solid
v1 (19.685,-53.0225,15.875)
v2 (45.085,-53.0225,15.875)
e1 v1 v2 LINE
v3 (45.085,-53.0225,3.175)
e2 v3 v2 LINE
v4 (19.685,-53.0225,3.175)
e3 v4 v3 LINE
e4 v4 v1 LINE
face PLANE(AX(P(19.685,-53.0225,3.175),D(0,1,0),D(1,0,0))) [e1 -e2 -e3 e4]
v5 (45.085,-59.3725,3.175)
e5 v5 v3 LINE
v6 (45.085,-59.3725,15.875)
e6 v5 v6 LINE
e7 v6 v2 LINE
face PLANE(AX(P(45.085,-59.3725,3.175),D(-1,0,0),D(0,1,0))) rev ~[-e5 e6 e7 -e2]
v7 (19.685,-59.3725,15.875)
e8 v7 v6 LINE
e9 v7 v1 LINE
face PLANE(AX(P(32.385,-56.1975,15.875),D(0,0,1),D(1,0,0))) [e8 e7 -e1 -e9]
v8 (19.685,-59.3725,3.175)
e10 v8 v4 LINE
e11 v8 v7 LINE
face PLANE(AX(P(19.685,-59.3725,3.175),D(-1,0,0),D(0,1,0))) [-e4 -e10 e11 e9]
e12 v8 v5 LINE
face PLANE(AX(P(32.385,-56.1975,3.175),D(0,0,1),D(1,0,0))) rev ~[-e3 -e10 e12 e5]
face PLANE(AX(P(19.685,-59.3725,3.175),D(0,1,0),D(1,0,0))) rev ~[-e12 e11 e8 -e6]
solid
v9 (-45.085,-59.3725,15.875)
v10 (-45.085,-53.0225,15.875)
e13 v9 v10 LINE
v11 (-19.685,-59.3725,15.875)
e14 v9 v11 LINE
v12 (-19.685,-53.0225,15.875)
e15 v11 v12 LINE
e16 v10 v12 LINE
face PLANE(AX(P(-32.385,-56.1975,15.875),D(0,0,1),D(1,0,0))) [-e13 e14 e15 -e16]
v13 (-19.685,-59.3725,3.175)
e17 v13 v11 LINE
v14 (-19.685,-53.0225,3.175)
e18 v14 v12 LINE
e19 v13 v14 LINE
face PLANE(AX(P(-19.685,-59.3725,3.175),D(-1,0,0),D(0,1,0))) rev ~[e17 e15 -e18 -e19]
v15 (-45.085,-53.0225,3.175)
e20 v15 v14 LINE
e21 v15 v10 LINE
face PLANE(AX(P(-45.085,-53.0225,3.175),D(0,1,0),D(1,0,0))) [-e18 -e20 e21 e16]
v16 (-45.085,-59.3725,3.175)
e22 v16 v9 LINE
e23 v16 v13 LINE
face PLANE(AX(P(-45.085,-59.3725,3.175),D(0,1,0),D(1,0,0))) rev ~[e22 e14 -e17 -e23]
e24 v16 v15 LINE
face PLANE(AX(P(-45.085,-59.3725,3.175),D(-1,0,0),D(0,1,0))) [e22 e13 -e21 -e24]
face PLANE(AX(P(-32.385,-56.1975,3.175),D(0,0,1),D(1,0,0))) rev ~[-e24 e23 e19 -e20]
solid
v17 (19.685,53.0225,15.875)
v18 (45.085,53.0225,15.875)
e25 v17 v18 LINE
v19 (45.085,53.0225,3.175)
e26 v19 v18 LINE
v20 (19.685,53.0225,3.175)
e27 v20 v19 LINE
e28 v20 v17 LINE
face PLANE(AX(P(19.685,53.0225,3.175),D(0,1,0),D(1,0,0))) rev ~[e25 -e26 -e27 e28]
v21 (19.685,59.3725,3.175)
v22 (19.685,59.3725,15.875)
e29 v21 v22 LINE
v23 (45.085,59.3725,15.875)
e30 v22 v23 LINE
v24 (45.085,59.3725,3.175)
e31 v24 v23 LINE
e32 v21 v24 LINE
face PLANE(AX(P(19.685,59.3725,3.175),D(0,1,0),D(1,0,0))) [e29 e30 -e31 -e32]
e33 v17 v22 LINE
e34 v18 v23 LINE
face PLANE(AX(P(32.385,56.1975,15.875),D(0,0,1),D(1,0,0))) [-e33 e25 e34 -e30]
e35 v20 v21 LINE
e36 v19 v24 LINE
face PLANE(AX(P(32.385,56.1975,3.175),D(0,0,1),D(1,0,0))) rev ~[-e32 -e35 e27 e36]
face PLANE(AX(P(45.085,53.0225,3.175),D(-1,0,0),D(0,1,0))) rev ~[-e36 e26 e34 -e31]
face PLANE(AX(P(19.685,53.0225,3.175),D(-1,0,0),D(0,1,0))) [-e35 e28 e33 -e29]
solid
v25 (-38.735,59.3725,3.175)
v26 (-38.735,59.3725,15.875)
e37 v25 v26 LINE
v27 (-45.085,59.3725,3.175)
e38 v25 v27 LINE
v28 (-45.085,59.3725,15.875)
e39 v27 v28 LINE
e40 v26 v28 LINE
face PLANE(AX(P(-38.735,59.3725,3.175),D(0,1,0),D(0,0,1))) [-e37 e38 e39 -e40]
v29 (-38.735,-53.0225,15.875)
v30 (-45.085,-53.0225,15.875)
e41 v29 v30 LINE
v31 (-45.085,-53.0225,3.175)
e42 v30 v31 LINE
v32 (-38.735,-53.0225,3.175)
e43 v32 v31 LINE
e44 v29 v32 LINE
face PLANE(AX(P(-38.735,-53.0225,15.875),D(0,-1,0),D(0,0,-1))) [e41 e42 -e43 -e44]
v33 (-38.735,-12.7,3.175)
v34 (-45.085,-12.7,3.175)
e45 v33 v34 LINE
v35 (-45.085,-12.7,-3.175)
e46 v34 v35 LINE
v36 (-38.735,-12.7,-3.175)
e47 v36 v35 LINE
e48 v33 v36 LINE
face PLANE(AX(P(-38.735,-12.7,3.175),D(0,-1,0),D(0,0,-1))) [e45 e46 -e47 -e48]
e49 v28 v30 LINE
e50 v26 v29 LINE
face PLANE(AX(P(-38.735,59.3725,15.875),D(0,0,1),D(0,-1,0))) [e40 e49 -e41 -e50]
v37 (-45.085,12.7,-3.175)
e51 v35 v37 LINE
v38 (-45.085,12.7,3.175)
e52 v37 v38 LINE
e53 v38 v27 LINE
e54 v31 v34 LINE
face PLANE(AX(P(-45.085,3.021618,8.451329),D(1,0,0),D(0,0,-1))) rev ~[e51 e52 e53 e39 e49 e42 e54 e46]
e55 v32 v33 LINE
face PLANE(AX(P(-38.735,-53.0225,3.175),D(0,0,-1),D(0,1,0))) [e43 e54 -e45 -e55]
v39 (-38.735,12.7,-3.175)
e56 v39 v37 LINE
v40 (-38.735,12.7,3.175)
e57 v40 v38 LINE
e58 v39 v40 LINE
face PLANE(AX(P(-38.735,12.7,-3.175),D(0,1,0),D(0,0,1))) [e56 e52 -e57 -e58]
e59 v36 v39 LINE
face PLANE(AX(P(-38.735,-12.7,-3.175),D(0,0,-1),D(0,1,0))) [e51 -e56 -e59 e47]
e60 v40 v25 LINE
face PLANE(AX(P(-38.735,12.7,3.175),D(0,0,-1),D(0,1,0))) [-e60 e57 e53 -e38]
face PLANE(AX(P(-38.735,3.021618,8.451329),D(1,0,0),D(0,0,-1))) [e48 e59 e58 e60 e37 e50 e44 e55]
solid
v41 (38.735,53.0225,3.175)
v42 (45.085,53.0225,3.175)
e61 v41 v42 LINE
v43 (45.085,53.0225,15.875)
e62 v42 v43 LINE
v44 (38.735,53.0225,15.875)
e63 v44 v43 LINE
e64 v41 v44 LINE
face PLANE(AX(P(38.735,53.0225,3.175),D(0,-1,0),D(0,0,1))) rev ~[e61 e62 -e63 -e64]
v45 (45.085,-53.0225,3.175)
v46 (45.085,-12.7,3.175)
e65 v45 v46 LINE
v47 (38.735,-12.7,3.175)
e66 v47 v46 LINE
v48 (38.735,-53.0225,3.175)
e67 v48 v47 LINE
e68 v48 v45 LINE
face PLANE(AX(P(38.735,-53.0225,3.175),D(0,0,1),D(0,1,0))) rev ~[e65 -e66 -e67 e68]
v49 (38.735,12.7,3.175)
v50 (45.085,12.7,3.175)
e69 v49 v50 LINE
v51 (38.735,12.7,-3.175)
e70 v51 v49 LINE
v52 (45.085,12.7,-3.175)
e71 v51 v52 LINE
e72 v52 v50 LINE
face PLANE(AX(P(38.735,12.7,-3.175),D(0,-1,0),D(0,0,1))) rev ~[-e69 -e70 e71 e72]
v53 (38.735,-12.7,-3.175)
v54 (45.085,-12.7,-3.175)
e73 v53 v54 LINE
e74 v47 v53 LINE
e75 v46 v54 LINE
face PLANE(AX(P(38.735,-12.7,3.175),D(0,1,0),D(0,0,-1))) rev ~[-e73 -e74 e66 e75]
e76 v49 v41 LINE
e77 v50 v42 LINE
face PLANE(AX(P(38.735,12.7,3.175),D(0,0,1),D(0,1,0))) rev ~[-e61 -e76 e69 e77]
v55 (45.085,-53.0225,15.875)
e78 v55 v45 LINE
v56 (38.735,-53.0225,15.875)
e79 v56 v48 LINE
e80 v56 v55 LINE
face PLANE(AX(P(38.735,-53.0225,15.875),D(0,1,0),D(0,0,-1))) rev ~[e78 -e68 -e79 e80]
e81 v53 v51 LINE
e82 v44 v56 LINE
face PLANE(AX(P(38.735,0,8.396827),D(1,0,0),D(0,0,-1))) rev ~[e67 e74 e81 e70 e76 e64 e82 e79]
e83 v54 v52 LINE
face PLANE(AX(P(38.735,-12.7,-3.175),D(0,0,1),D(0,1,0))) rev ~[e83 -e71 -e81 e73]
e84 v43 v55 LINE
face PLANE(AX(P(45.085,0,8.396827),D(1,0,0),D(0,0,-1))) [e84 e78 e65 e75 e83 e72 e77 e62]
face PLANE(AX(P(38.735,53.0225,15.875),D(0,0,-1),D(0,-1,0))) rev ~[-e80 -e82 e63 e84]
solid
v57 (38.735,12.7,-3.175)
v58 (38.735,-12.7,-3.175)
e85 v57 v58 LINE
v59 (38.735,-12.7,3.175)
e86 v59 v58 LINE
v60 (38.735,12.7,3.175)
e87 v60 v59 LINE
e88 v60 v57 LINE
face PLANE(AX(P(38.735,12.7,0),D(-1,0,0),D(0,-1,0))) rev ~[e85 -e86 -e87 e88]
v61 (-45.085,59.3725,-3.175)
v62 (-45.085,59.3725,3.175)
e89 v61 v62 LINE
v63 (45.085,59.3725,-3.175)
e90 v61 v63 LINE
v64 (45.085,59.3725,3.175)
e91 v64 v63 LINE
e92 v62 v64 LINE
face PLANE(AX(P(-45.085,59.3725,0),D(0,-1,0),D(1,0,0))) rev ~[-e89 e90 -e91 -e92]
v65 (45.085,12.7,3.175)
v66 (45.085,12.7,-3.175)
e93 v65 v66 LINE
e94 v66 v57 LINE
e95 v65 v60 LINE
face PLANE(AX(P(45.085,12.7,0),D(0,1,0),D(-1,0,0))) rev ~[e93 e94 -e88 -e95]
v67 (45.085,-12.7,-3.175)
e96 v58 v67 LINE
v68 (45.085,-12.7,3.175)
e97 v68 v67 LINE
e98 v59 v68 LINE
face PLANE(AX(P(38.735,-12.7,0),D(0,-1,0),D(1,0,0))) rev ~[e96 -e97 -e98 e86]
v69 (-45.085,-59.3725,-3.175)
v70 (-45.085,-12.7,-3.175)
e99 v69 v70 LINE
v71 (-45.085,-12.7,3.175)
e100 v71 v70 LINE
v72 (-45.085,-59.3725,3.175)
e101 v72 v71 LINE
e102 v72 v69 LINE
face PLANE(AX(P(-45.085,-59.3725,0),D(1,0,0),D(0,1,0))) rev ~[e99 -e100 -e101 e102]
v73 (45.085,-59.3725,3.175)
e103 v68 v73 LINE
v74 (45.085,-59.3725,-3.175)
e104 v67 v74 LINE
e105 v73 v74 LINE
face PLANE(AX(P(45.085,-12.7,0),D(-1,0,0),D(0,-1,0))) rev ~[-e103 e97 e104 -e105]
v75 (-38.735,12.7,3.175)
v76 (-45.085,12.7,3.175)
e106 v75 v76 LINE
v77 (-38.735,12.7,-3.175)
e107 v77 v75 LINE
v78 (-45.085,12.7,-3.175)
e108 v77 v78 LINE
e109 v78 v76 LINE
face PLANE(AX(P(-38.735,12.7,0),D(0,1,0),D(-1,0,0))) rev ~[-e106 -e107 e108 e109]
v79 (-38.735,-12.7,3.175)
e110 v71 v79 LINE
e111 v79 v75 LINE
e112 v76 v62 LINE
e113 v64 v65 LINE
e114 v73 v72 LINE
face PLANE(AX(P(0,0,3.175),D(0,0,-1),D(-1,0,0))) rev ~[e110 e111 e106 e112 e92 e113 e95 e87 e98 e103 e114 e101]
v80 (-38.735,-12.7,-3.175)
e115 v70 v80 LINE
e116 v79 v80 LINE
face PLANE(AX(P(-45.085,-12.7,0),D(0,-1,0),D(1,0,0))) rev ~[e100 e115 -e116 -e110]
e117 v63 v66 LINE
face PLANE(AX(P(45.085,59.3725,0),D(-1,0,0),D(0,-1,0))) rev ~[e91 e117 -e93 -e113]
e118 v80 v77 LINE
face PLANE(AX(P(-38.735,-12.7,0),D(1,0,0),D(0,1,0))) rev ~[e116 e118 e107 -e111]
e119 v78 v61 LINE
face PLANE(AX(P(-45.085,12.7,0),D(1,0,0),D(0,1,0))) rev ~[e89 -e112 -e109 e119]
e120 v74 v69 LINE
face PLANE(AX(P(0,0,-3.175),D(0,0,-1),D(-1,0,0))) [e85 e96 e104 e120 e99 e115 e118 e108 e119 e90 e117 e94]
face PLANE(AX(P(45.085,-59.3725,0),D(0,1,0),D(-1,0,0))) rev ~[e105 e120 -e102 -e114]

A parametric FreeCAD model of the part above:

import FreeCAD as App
import Part
import Sketcher
from FreeCAD import Vector
Q = App.Units.Quantity

doc = App.newDocument("Part")
body = doc.addObject("PartDesign::Body", "Body")

# Sketch on XY plane
sketch1 = body.newObject("Sketcher::SketchObject", "Sketch")
sketch1.AttachmentSupport = (doc.getObject("XY_Plane"), [""])
sketch1.MapMode = "FlatFace"
sketch1.addGeometry(Part.LineSegment(Vector(45.085, 59.3725, 0), Vector(-45.085, 59.3725, 0)), False)
sketch1.addGeometry(Part.LineSegment(Vector(-45.085, 59.3725, 0), Vector(-45.085, 12.7, 0)), False)
sketch1.addGeometry(Part.LineSegment(Vector(-45.085, 12.7, 0), Vector(-38.735, 12.7, 0)), False)
sketch1.addGeometry(Part.LineSegment(Vector(-38.735, 12.7, 0), Vector(-38.735, -12.7, 0)), False)
sketch1.addGeometry(Part.LineSegment(Vector(-38.735, -12.7, 0), Vector(-45.085, -12.7, 0)), False)
sketch1.addGeometry(Part.LineSegment(Vector(-45.085, -12.7, 0), Vector(-45.085, -59.3725, 0)), False)
sketch1.addGeometry(Part.LineSegment(Vector(-45.085, -59.3725, 0), Vector(45.085, -59.3725, 0)), False)
sketch1.addGeometry(Part.LineSegment(Vector(45.085, -59.3725, 0), Vector(45.085, -12.7, 0)), False)
sketch1.addGeometry(Part.LineSegment(Vector(45.085, -12.7, 0), Vector(38.735, -12.7, 0)), False)
sketch1.addGeometry(Part.LineSegment(Vector(38.735, -12.7, 0), Vector(38.735, 12.7, 0)), False)
sketch1.addGeometry(Part.LineSegment(Vector(38.735, 12.7, 0), Vector(45.085, 12.7, 0)), False)
sketch1.addGeometry(Part.LineSegment(Vector(45.085, 12.7, 0), Vector(45.085, 59.3725, 0)), False)
sketch1.addConstraint(Sketcher.Constraint("Coincident", 0, 2, 1, 1))
sketch1.addConstraint(Sketcher.Constraint("Coincident", 1, 2, 2, 1))
sketch1.addConstraint(Sketcher.Constraint("Coincident", 2, 2, 3, 1))
sketch1.addConstraint(Sketcher.Constraint("Coincident", 3, 2, 4, 1))
sketch1.addConstraint(Sketcher.Constraint("Coincident", 4, 2, 5, 1))
sketch1.addConstraint(Sketcher.Constraint("Coincident", 5, 2, 6, 1))
sketch1.addConstraint(Sketcher.Constraint("Coincident", 6, 2, 7, 1))
sketch1.addConstraint(Sketcher.Constraint("Coincident", 7, 2, 8, 1))
sketch1.addConstraint(Sketcher.Constraint("Coincident", 8, 2, 9, 1))
sketch1.addConstraint(Sketcher.Constraint("Coincident", 9, 2, 10, 1))
sketch1.addConstraint(Sketcher.Constraint("Coincident", 10, 2, 11, 1))
sketch1.addConstraint(Sketcher.Constraint("Coincident", 11, 2, 0, 1))
sketch1.addConstraint(Sketcher.Constraint("Horizontal", 0))
sketch1.addConstraint(Sketcher.Constraint("Vertical", 1))
sketch1.addConstraint(Sketcher.Constraint("Horizontal", 2))
sketch1.addConstraint(Sketcher.Constraint("Vertical", 3))
sketch1.addConstraint(Sketcher.Constraint("Horizontal", 4))
sketch1.addConstraint(Sketcher.Constraint("Vertical", 5))
sketch1.addConstraint(Sketcher.Constraint("Horizontal", 6))
sketch1.addConstraint(Sketcher.Constraint("Vertical", 7))
sketch1.addConstraint(Sketcher.Constraint("Horizontal", 8))
sketch1.addConstraint(Sketcher.Constraint("Vertical", 9))
sketch1.addConstraint(Sketcher.Constraint("Horizontal", 10))
sketch1.addConstraint(Sketcher.Constraint("Vertical", 11))
sketch1.addConstraint(Sketcher.Constraint("Symmetric", 0, 2, 6, 2, -1, 1))
sketch1.addConstraint(Sketcher.Constraint("Symmetric", 2, 2, 8, 2, -1, 1))
sketch1.addConstraint(Sketcher.Constraint("Symmetric", 4, 2, 10, 2, -1, 1))
sketch1.addConstraint(Sketcher.Constraint("Symmetric", 4, 2, 7, 2, -2))
sketch1.addConstraint(Sketcher.Constraint("DistanceY", 3, 2, 3, 1, Q("1 in")))
sketch1.addConstraint(Sketcher.Constraint("DistanceX", 0, 2, 0, 1, Q("3.55 in")))
sketch1.addConstraint(Sketcher.Constraint("DistanceX", 2, 1, 2, 2, Q("0.25 in")))
sketch1.addConstraint(Sketcher.Constraint("DistanceY", 1, 2, 1, 1, Q("1.8375 in")))
pad1 = body.newObject("PartDesign::Pad", "Pad")
pad1.Profile = sketch1
pad1.Length = Q("0.25 in")
pad1.Midplane = True
body2 = doc.addObject("PartDesign::Body", "Body001")

# Sketch on XY plane
sketch2 = body2.newObject("Sketcher::SketchObject", "Sketch001")
sketch2.AttachmentSupport = (doc.getObject("XY_Plane001"), [""])
sketch2.MapMode = "FlatFace"
sketch2.AttachmentOffset = App.Placement(Vector(0, 0, 0.125 * 25.4), App.Rotation())
sketch2.addGeometry(Part.LineSegment(Vector(19.685, 59.3725, 0), Vector(19.685, 53.0225, 0)), False)
sketch2.addGeometry(Part.LineSegment(Vector(19.685, 53.0225, 0), Vector(45.085, 53.0225, 0)), False)
sketch2.addGeometry(Part.LineSegment(Vector(45.085, 53.0225, 0), Vector(45.085, 59.3725, 0)), False)
sketch2.addGeometry(Part.LineSegment(Vector(45.085, 59.3725, 0), Vector(19.685, 59.3725, 0)), False)
sketch2.addConstraint(Sketcher.Constraint("Coincident", 0, 2, 1, 1))
sketch2.addConstraint(Sketcher.Constraint("Coincident", 1, 2, 2, 1))
sketch2.addConstraint(Sketcher.Constraint("Coincident", 2, 2, 3, 1))
sketch2.addConstraint(Sketcher.Constraint("Coincident", 3, 2, 0, 1))
sketch2.addConstraint(Sketcher.Constraint("Vertical", 0))
sketch2.addConstraint(Sketcher.Constraint("Horizontal", 1))
sketch2.addConstraint(Sketcher.Constraint("Vertical", 2))
sketch2.addConstraint(Sketcher.Constraint("Horizontal", 3))
sketch2.addConstraint(Sketcher.Constraint("DistanceX", 1, 1, 1, 2, Q("1 in")))
sketch2.addConstraint(Sketcher.Constraint("DistanceY", 0, 2, 0, 1, Q("0.25 in")))
sketch2.addConstraint(Sketcher.Constraint("DistanceX", -1, 1, 0, 2, Q("0.775 in")))
sketch2.addConstraint(Sketcher.Constraint("DistanceY", -1, 1, 0, 2, Q("2.0875 in")))
pad2 = body2.newObject("PartDesign::Pad", "Pad001")
pad2.Profile = sketch2
pad2.Length = Q("0.5 in")
body3 = doc.addObject("PartDesign::Body", "Body002")

# Sketch on XY plane
sketch3 = body3.newObject("Sketcher::SketchObject", "Sketch002")
sketch3.AttachmentSupport = (doc.getObject("XY_Plane002"), [""])
sketch3.MapMode = "FlatFace"
sketch3.AttachmentOffset = App.Placement(Vector(0, 0, 0.125 * 25.4), App.Rotation())
sketch3.addGeometry(Part.LineSegment(Vector(-45.085, -53.0225, 0), Vector(-45.085, -59.3725, 0)), False)
sketch3.addGeometry(Part.LineSegment(Vector(-45.085, -59.3725, 0), Vector(-19.685, -59.3725, 0)), False)
sketch3.addGeometry(Part.LineSegment(Vector(-19.685, -59.3725, 0), Vector(-19.685, -53.0225, 0)), False)
sketch3.addGeometry(Part.LineSegment(Vector(-19.685, -53.0225, 0), Vector(-45.085, -53.0225, 0)), False)
sketch3.addConstraint(Sketcher.Constraint("Coincident", 0, 2, 1, 1))
sketch3.addConstraint(Sketcher.Constraint("Coincident", 1, 2, 2, 1))
sketch3.addConstraint(Sketcher.Constraint("Coincident", 2, 2, 3, 1))
sketch3.addConstraint(Sketcher.Constraint("Coincident", 3, 2, 0, 1))
sketch3.addConstraint(Sketcher.Constraint("Vertical", 0))
sketch3.addConstraint(Sketcher.Constraint("Horizontal", 1))
sketch3.addConstraint(Sketcher.Constraint("Vertical", 2))
sketch3.addConstraint(Sketcher.Constraint("Horizontal", 3))
sketch3.addConstraint(Sketcher.Constraint("DistanceX", 1, 1, 1, 2, Q("1 in")))
sketch3.addConstraint(Sketcher.Constraint("DistanceY", 0, 2, 0, 1, Q("0.25 in")))
sketch3.addConstraint(Sketcher.Constraint("DistanceX", 0, 2, -1, 1, Q("1.775 in")))
sketch3.addConstraint(Sketcher.Constraint("DistanceY", 0, 2, -1, 1, Q("2.3375 in")))
pad3 = body3.newObject("PartDesign::Pad", "Pad002")
pad3.Profile = sketch3
pad3.Length = Q("0.5 in")
body4 = doc.addObject("PartDesign::Body", "Body003")

# Sketch on XY plane
sketch4 = body4.newObject("Sketcher::SketchObject", "Sketch003")
sketch4.AttachmentSupport = (doc.getObject("XY_Plane003"), [""])
sketch4.MapMode = "FlatFace"
sketch4.AttachmentOffset = App.Placement(Vector(0, 0, 0.125 * 25.4), App.Rotation())
sketch4.addGeometry(Part.LineSegment(Vector(19.685, -53.0225, 0), Vector(19.685, -59.3725, 0)), False)
sketch4.addGeometry(Part.LineSegment(Vector(19.685, -59.3725, 0), Vector(45.085, -59.3725, 0)), False)
sketch4.addGeometry(Part.LineSegment(Vector(45.085, -59.3725, 0), Vector(45.085, -53.0225, 0)), False)
sketch4.addGeometry(Part.LineSegment(Vector(45.085, -53.0225, 0), Vector(19.685, -53.0225, 0)), False)
sketch4.addConstraint(Sketcher.Constraint("Coincident", 0, 2, 1, 1))
sketch4.addConstraint(Sketcher.Constraint("Coincident", 1, 2, 2, 1))
sketch4.addConstraint(Sketcher.Constraint("Coincident", 2, 2, 3, 1))
sketch4.addConstraint(Sketcher.Constraint("Coincident", 3, 2, 0, 1))
sketch4.addConstraint(Sketcher.Constraint("Vertical", 0))
sketch4.addConstraint(Sketcher.Constraint("Horizontal", 1))
sketch4.addConstraint(Sketcher.Constraint("Vertical", 2))
sketch4.addConstraint(Sketcher.Constraint("Horizontal", 3))
sketch4.addConstraint(Sketcher.Constraint("DistanceX", 1, 1, 1, 2, Q("1 in")))
sketch4.addConstraint(Sketcher.Constraint("DistanceY", 0, 2, 0, 1, Q("0.25 in")))
sketch4.addConstraint(Sketcher.Constraint("DistanceX", -1, 1, 0, 2, Q("0.775 in")))
sketch4.addConstraint(Sketcher.Constraint("DistanceY", 0, 2, -1, 1, Q("2.3375 in")))
pad4 = body4.newObject("PartDesign::Pad", "Pad003")
pad4.Profile = sketch4
pad4.Length = Q("0.5 in")
body5 = doc.addObject("PartDesign::Body", "Body004")

# Sketch on YZ plane
sketch5 = body5.newObject("Sketcher::SketchObject", "Sketch004")
sketch5.AttachmentSupport = (doc.getObject("YZ_Plane004"), [""])
sketch5.MapMode = "FlatFace"
sketch5.AttachmentOffset = App.Placement(Vector(0, 0, 1.525 * 25.4), App.Rotation())
sketch5.addGeometry(Part.LineSegment(Vector(12.7, -3.175, 0), Vector(12.7, 3.175, 0)), False)
sketch5.addGeometry(Part.LineSegment(Vector(12.7, 3.175, 0), Vector(53.0225, 3.175, 0)), False)
sketch5.addGeometry(Part.LineSegment(Vector(53.0225, 3.175, 0), Vector(53.0225, 15.875, 0)), False)
sketch5.addGeometry(Part.LineSegment(Vector(53.0225, 15.875, 0), Vector(-53.0225, 15.875, 0)), False)
sketch5.addGeometry(Part.LineSegment(Vector(-53.0225, 15.875, 0), Vector(-53.0225, 3.175, 0)), False)
sketch5.addGeometry(Part.LineSegment(Vector(-53.0225, 3.175, 0), Vector(-12.7, 3.175, 0)), False)
sketch5.addGeometry(Part.LineSegment(Vector(-12.7, 3.175, 0), Vector(-12.7, -3.175, 0)), False)
sketch5.addGeometry(Part.LineSegment(Vector(-12.7, -3.175, 0), Vector(12.7, -3.175, 0)), False)
sketch5.addConstraint(Sketcher.Constraint("Coincident", 0, 2, 1, 1))
sketch5.addConstraint(Sketcher.Constraint("Coincident", 1, 2, 2, 1))
sketch5.addConstraint(Sketcher.Constraint("Coincident", 2, 2, 3, 1))
sketch5.addConstraint(Sketcher.Constraint("Coincident", 3, 2, 4, 1))
sketch5.addConstraint(Sketcher.Constraint("Coincident", 4, 2, 5, 1))
sketch5.addConstraint(Sketcher.Constraint("Coincident", 5, 2, 6, 1))
sketch5.addConstraint(Sketcher.Constraint("Coincident", 6, 2, 7, 1))
sketch5.addConstraint(Sketcher.Constraint("Coincident", 7, 2, 0, 1))
sketch5.addConstraint(Sketcher.Constraint("Vertical", 0))
sketch5.addConstraint(Sketcher.Constraint("Horizontal", 1))
sketch5.addConstraint(Sketcher.Constraint("Vertical", 2))
sketch5.addConstraint(Sketcher.Constraint("Horizontal", 3))
sketch5.addConstraint(Sketcher.Constraint("Vertical", 4))
sketch5.addConstraint(Sketcher.Constraint("Horizontal", 5))
sketch5.addConstraint(Sketcher.Constraint("Vertical", 6))
sketch5.addConstraint(Sketcher.Constraint("Horizontal", 7))
sketch5.addConstraint(Sketcher.Constraint("Symmetric", 0, 2, 6, 2, -1, 1))
sketch5.addConstraint(Sketcher.Constraint("Symmetric", 1, 2, 4, 2, -2))
sketch5.addConstraint(Sketcher.Constraint("DistanceX", 7, 1, 7, 2, Q("1 in")))
sketch5.addConstraint(Sketcher.Constraint("DistanceY", 2, 1, 2, 2, Q("0.5 in")))
sketch5.addConstraint(Sketcher.Constraint("DistanceY", 0, 1, 0, 2, Q("0.25 in")))
sketch5.addConstraint(Sketcher.Constraint("DistanceX", 3, 2, 3, 1, Q("4.175 in")))
pad5 = body5.newObject("PartDesign::Pad", "Pad004")
pad5.Profile = sketch5
pad5.Length = Q("0.25 in")
body6 = doc.addObject("PartDesign::Body", "Body005")

# Sketch on YZ plane
sketch6 = body6.newObject("Sketcher::SketchObject", "Sketch005")
sketch6.AttachmentSupport = (doc.getObject("YZ_Plane005"), [""])
sketch6.MapMode = "FlatFace"
sketch6.AttachmentOffset = App.Placement(Vector(0, 0, -1.525 * 25.4), App.Rotation())
sketch6.addGeometry(Part.LineSegment(Vector(12.7, 3.175, 0), Vector(12.7, -3.175, 0)), False)
sketch6.addGeometry(Part.LineSegment(Vector(12.7, -3.175, 0), Vector(-12.7, -3.175, 0)), False)
sketch6.addGeometry(Part.LineSegment(Vector(-12.7, -3.175, 0), Vector(-12.7, 3.175, 0)), False)
sketch6.addGeometry(Part.LineSegment(Vector(-12.7, 3.175, 0), Vector(-53.0225, 3.175, 0)), False)
sketch6.addGeometry(Part.LineSegment(Vector(-53.0225, 3.175, 0), Vector(-53.0225, 15.875, 0)), False)
sketch6.addGeometry(Part.LineSegment(Vector(-53.0225, 15.875, 0), Vector(59.3725, 15.875, 0)), False)
sketch6.addGeometry(Part.LineSegment(Vector(59.3725, 15.875, 0), Vector(59.3725, 3.175, 0)), False)
sketch6.addGeometry(Part.LineSegment(Vector(59.3725, 3.175, 0), Vector(12.7, 3.175, 0)), False)
sketch6.addConstraint(Sketcher.Constraint("Coincident", 0, 2, 1, 1))
sketch6.addConstraint(Sketcher.Constraint("Coincident", 1, 2, 2, 1))
sketch6.addConstraint(Sketcher.Constraint("Coincident", 2, 2, 3, 1))
sketch6.addConstraint(Sketcher.Constraint("Coincident", 3, 2, 4, 1))
sketch6.addConstraint(Sketcher.Constraint("Coincident", 4, 2, 5, 1))
sketch6.addConstraint(Sketcher.Constraint("Coincident", 5, 2, 6, 1))
sketch6.addConstraint(Sketcher.Constraint("Coincident", 6, 2, 7, 1))
sketch6.addConstraint(Sketcher.Constraint("Coincident", 7, 2, 0, 1))
sketch6.addConstraint(Sketcher.Constraint("Vertical", 0))
sketch6.addConstraint(Sketcher.Constraint("Horizontal", 1))
sketch6.addConstraint(Sketcher.Constraint("Vertical", 2))
sketch6.addConstraint(Sketcher.Constraint("Horizontal", 3))
sketch6.addConstraint(Sketcher.Constraint("Vertical", 4))
sketch6.addConstraint(Sketcher.Constraint("Horizontal", 5))
sketch6.addConstraint(Sketcher.Constraint("Vertical", 6))
sketch6.addConstraint(Sketcher.Constraint("Horizontal", 7))
sketch6.addConstraint(Sketcher.Constraint("Symmetric", 0, 2, 2, 2, -1, 1))
sketch6.addConstraint(Sketcher.Constraint("Horizontal", 3, 2, 6, 2))
sketch6.addConstraint(Sketcher.Constraint("DistanceX", 1, 2, 1, 1, Q("1 in")))
sketch6.addConstraint(Sketcher.Constraint("DistanceY", 4, 1, 4, 2, Q("0.5 in")))
sketch6.addConstraint(Sketcher.Constraint("DistanceY", 0, 2, 0, 1, Q("0.25 in")))
sketch6.addConstraint(Sketcher.Constraint("DistanceX", 5, 1, 5, 2, Q("4.425 in")))
sketch6.addConstraint(Sketcher.Constraint("DistanceX", 3, 2, 3, 1, Q("1.5875 in")))
pad6 = body6.newObject("PartDesign::Pad", "Pad005")
pad6.Profile = sketch6
pad6.Length = Q("0.25 in")
pad6.Reversed = True

doc.recompute()
